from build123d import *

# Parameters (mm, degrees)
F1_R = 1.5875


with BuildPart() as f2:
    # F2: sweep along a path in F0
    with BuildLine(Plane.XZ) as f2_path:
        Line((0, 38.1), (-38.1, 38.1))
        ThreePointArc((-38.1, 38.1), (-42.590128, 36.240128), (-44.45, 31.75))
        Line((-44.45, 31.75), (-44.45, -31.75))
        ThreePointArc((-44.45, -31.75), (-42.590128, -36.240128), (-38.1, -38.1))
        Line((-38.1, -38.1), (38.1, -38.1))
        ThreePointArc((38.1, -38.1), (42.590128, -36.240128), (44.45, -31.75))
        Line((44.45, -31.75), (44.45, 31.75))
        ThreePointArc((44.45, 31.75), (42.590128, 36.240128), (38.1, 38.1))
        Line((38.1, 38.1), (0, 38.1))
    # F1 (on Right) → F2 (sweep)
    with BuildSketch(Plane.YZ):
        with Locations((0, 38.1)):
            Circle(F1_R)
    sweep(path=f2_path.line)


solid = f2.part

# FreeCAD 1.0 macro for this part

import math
import FreeCAD as App
import Part
import Sketcher
Q = App.Units.Quantity

doc = App.newDocument("Part")
body = doc.addObject("PartDesign::Body", "Body")

sketch1 = body.newObject("Sketcher::SketchObject", "Sketch")
sketch1.AttachmentSupport = (doc.getObject("YZ_Plane"), [""])
sketch1.MapMode = "FlatFace"
sketch1.addGeometry(Part.Circle(App.Vector(0, 38.1, 0), App.Vector(0, 0, 1), 1.6), False)
sketch1.addConstraint(Sketcher.Constraint("PointOnObject", 0, 3, -2))
sketch1.addConstraint(Sketcher.Constraint("Diameter", 0, Q("0.125 in")))
sketch1.addConstraint(Sketcher.Constraint("DistanceY", -1, 1, 0, 3, Q("1.5 in")))

sketch2 = body.newObject("Sketcher::SketchObject", "Sketch001")
sketch2.AttachmentSupport = (doc.getObject("XZ_Plane"), [""])
sketch2.MapMode = "FlatFace"
sketch2.addGeometry(Part.ArcOfCircle(Part.Circle(App.Vector(-38, 32, 0), App.Vector(0, 0, 1), 6), math.radians(90), math.radians(180)), False)
sketch2.addGeometry(Part.LineSegment(App.Vector(-44, 32, 0), App.Vector(-44, -32, 0)), False)
sketch2.addGeometry(Part.ArcOfCircle(Part.Circle(App.Vector(-38, -32, 0), App.Vector(0, 0, 1), 6), math.radians(-180), math.radians(-90)), False)
sketch2.addGeometry(Part.LineSegment(App.Vector(-38, -38, 0), App.Vector(38, -38, 0)), False)
sketch2.addGeometry(Part.ArcOfCircle(Part.Circle(App.Vector(38, -32, 0), App.Vector(0, 0, 1), 6), math.radians(-90), math.radians(0)), False)
sketch2.addGeometry(Part.LineSegment(App.Vector(44, -32, 0), App.Vector(44, 32, 0)), False)
sketch2.addGeometry(Part.ArcOfCircle(Part.Circle(App.Vector(38, 32, 0), App.Vector(0, 0, 1), 6), math.radians(0), math.radians(90)), False)
sketch2.addGeometry(Part.LineSegment(App.Vector(38, 38, 0), App.Vector(-38, 38, 0)), False)
sketch2.addConstraint(Sketcher.Constraint("Tangent", 0, 2, 1, 1))
sketch2.addConstraint(Sketcher.Constraint("Tangent", 1, 2, 2, 1))
sketch2.addConstraint(Sketcher.Constraint("Tangent", 2, 2, 3, 1))
sketch2.addConstraint(Sketcher.Constraint("Tangent", 3, 2, 4, 1))
sketch2.addConstraint(Sketcher.Constraint("Tangent", 4, 2, 5, 1))
sketch2.addConstraint(Sketcher.Constraint("Tangent", 5, 2, 6, 1))
sketch2.addConstraint(Sketcher.Constraint("Tangent", 6, 2, 7, 1))
sketch2.addConstraint(Sketcher.Constraint("Tangent", 7, 2, 0, 1))
sketch2.addConstraint(Sketcher.Constraint("Vertical", 1))
sketch2.addConstraint(Sketcher.Constraint("Horizontal", 3))
sketch2.addConstraint(Sketcher.Constraint("Vertical", 5))
sketch2.addConstraint(Sketcher.Constraint("Horizontal", 7))
sketch2.addConstraint(Sketcher.Constraint("Equal", 0, 2))
sketch2.addConstraint(Sketcher.Constraint("Equal", 2, 4))
sketch2.addConstraint(Sketcher.Constraint("Equal", 4, 6))
sketch2.addConstraint(Sketcher.Constraint("Symmetric", 0, 3, 4, 3, -1, 1))
sketch2.addConstraint(Sketcher.Constraint("DistanceX", 3, 1, 3, 2, Q("3 in")))
sketch2.addConstraint(Sketcher.Constraint("Radius", 0, Q("0.25 in")))
sketch2.addConstraint(Sketcher.Constraint("DistanceY", 1, 2, 1, 1, Q("2.5 in")))
doc.recompute()

additivepipe = body.newObject("PartDesign::AdditivePipe", "AdditivePipe")
additivepipe.Profile = sketch1
additivepipe.Spine = (sketch2, ["Edge1", "Edge2", "Edge3", "Edge4", "Edge5", "Edge6", "Edge7", "Edge8"])

doc.recompute()
